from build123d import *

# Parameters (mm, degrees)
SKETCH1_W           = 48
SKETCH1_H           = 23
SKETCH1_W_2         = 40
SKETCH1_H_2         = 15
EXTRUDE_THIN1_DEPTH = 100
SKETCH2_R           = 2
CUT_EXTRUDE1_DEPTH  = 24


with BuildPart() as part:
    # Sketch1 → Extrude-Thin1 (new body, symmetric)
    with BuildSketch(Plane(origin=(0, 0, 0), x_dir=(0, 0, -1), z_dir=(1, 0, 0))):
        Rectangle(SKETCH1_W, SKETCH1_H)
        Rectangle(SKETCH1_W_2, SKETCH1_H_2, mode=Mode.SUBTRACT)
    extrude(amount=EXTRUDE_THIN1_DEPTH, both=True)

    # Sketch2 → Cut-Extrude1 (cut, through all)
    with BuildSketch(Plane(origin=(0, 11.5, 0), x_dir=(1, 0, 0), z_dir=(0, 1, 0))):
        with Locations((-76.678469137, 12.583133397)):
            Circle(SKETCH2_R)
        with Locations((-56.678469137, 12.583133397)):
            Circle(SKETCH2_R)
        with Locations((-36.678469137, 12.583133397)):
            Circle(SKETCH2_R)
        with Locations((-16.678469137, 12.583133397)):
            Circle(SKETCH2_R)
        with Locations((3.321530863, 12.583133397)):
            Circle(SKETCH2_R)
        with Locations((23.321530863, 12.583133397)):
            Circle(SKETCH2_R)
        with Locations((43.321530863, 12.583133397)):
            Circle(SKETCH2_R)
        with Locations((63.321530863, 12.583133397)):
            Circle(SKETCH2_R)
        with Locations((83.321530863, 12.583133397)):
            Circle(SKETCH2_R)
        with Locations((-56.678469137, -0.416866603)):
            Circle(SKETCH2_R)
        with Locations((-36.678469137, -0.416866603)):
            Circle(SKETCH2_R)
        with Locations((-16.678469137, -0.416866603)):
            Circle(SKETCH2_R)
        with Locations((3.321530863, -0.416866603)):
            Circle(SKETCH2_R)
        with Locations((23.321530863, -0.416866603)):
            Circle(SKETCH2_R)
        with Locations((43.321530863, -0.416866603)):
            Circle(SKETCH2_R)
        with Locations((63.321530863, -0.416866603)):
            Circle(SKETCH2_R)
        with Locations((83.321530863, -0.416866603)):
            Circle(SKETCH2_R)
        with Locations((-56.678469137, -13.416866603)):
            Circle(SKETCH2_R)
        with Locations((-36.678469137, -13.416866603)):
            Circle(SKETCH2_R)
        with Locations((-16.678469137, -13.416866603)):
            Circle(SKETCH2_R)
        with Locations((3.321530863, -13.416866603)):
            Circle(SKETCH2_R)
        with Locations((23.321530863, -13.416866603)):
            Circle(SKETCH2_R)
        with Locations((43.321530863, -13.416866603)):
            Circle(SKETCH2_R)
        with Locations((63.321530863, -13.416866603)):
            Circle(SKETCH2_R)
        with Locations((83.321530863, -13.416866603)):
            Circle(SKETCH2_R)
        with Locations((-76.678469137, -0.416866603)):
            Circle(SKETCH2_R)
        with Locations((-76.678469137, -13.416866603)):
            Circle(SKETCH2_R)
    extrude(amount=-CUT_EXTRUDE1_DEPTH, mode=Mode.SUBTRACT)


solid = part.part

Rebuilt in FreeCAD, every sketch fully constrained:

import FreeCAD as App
import Part
import Sketcher


def add_polygon(sketch, points):
    """Adds a closed chain of lines whose ends are joined by coincident constraints."""
    first, n = sketch.GeometryCount, len(points)
    for a, b in zip(points, points[1:] + points[:1]):
        sketch.addGeometry(Part.LineSegment(App.Vector(*a, 0), App.Vector(*b, 0)), False)
    for i in range(n):
        sketch.addConstraint(Sketcher.Constraint("Coincident", first + i, 2, first + (i + 1) % n, 1))

doc = App.newDocument("Part")
body = doc.addObject("PartDesign::Body", "Body")

# Sketch on YZ plane
sketch1 = body.newObject("Sketcher::SketchObject", "Sketch")
sketch1.AttachmentSupport = (doc.getObject("YZ_Plane"), [""])
sketch1.MapMode = "FlatFace"
add_polygon(sketch1, [(11.5, 24), (-11.5, 24), (-11.5, -24), (11.5, -24)])  # lines 0-3
add_polygon(sketch1, [(-7.5, -20), (-7.5, 20), (7.5, 20), (7.5, -20)])  # lines 4-7
sketch1.addConstraint([
    Sketcher.Constraint("Horizontal", 0),
    Sketcher.Constraint("Vertical", 1),
    Sketcher.Constraint("Horizontal", 2),
    Sketcher.Constraint("Vertical", 3),
    Sketcher.Constraint("Vertical", 4),
    Sketcher.Constraint("Horizontal", 5),
    Sketcher.Constraint("Vertical", 6),
    Sketcher.Constraint("Horizontal", 7),
    Sketcher.Constraint("Symmetric", 0, 2, 2, 2, -1, 1),
    Sketcher.Constraint("Symmetric", 4, 2, 6, 2, -1, 1),
    Sketcher.Constraint("DistanceX", 0, 2, 0, 1, 23.0),
    Sketcher.Constraint("DistanceX", 5, 1, 5, 2, 15.0),
    Sketcher.Constraint("DistanceY", 1, 2, 1, 1, 48.0),
    Sketcher.Constraint("DistanceY", 4, 1, 4, 2, 40.0),
])
pad1 = body.newObject("PartDesign::Pad", "Pad")
pad1.Profile = sketch1
pad1.Length = 200
pad1.Midplane = True

# Sketch on XZ plane
sketch2 = body.newObject("Sketcher::SketchObject", "Sketch001")
sketch2.AttachmentSupport = (doc.getObject("XZ_Plane"), [""])
sketch2.MapMode = "FlatFace"
sketch2.AttachmentOffset = App.Placement(App.Vector(0, 0, -11.5), App.Rotation())
sketch2.addGeometry([
    Part.Circle(App.Vector(-76.678469, -12.583133, 0), App.Vector(0, 0, 1), 2),  # 0
    Part.Circle(App.Vector(-56.678469, -12.583133, 0), App.Vector(0, 0, 1), 2),  # 1
    Part.Circle(App.Vector(-36.678469, -12.583133, 0), App.Vector(0, 0, 1), 2),  # 2
    Part.Circle(App.Vector(-16.678469, -12.583133, 0), App.Vector(0, 0, 1), 2),  # 3
    Part.Circle(App.Vector(3.321531, -12.583133, 0), App.Vector(0, 0, 1), 2),  # 4
    Part.Circle(App.Vector(23.321531, -12.583133, 0), App.Vector(0, 0, 1), 2),  # 5
    Part.Circle(App.Vector(43.321531, -12.583133, 0), App.Vector(0, 0, 1), 2),  # 6
    Part.Circle(App.Vector(63.321531, -12.583133, 0), App.Vector(0, 0, 1), 2),  # 7
    Part.Circle(App.Vector(83.321531, -12.583133, 0), App.Vector(0, 0, 1), 2),  # 8
    Part.Circle(App.Vector(-56.678469, 0.416867, 0), App.Vector(0, 0, 1), 2),  # 9
    Part.Circle(App.Vector(-36.678469, 0.416867, 0), App.Vector(0, 0, 1), 2),  # 10
    Part.Circle(App.Vector(-16.678469, 0.416867, 0), App.Vector(0, 0, 1), 2),  # 11
    Part.Circle(App.Vector(3.321531, 0.416867, 0), App.Vector(0, 0, 1), 2),  # 12
    Part.Circle(App.Vector(23.321531, 0.416867, 0), App.Vector(0, 0, 1), 2),  # 13
    Part.Circle(App.Vector(43.321531, 0.416867, 0), App.Vector(0, 0, 1), 2),  # 14
    Part.Circle(App.Vector(63.321531, 0.416867, 0), App.Vector(0, 0, 1), 2),  # 15
    Part.Circle(App.Vector(83.321531, 0.416867, 0), App.Vector(0, 0, 1), 2),  # 16
    Part.Circle(App.Vector(-56.678469, 13.416867, 0), App.Vector(0, 0, 1), 2),  # 17
    Part.Circle(App.Vector(-36.678469, 13.416867, 0), App.Vector(0, 0, 1), 2),  # 18
    Part.Circle(App.Vector(-16.678469, 13.416867, 0), App.Vector(0, 0, 1), 2),  # 19
    Part.Circle(App.Vector(3.321531, 13.416867, 0), App.Vector(0, 0, 1), 2),  # 20
    Part.Circle(App.Vector(23.321531, 13.416867, 0), App.Vector(0, 0, 1), 2),  # 21
    Part.Circle(App.Vector(43.321531, 13.416867, 0), App.Vector(0, 0, 1), 2),  # 22
    Part.Circle(App.Vector(63.321531, 13.416867, 0), App.Vector(0, 0, 1), 2),  # 23
    Part.Circle(App.Vector(83.321531, 13.416867, 0), App.Vector(0, 0, 1), 2),  # 24
    Part.Circle(App.Vector(-76.678469, 0.416867, 0), App.Vector(0, 0, 1), 2),  # 25
    Part.Circle(App.Vector(-76.678469, 13.416867, 0), App.Vector(0, 0, 1), 2),  # 26
], False)
sketch2.addConstraint([
    Sketcher.Constraint("Equal", 0, 1),
    Sketcher.Constraint("Equal", 1, 2),
    Sketcher.Constraint("Equal", 2, 3),
    Sketcher.Constraint("Equal", 3, 4),
    Sketcher.Constraint("Equal", 4, 5),
    Sketcher.Constraint("Equal", 5, 6),
    Sketcher.Constraint("Equal", 6, 7),
    Sketcher.Constraint("Equal", 7, 8),
    Sketcher.Constraint("Equal", 8, 9),
    Sketcher.Constraint("Equal", 9, 10),
    Sketcher.Constraint("Equal", 10, 11),
    Sketcher.Constraint("Equal", 11, 12),
    Sketcher.Constraint("Equal", 12, 13),
    Sketcher.Constraint("Equal", 13, 14),
    Sketcher.Constraint("Equal", 14, 15),
    Sketcher.Constraint("Equal", 15, 16),
    Sketcher.Constraint("Equal", 16, 17),
    Sketcher.Constraint("Equal", 17, 18),
    Sketcher.Constraint("Equal", 18, 19),
    Sketcher.Constraint("Equal", 19, 20),
    Sketcher.Constraint("Equal", 20, 21),
    Sketcher.Constraint("Equal", 21, 22),
    Sketcher.Constraint("Equal", 22, 23),
    Sketcher.Constraint("Equal", 23, 24),
    Sketcher.Constraint("Equal", 24, 25),
    Sketcher.Constraint("Equal", 25, 26),
    Sketcher.Constraint("Horizontal", 0, 3, 1, 3),
    Sketcher.Constraint("Horizontal", 1, 3, 2, 3),
    Sketcher.Constraint("Horizontal", 2, 3, 3, 3),
    Sketcher.Constraint("Horizontal", 3, 3, 4, 3),
    Sketcher.Constraint("Horizontal", 4, 3, 5, 3),
    Sketcher.Constraint("Horizontal", 5, 3, 6, 3),
    Sketcher.Constraint("Horizontal", 6, 3, 7, 3),
    Sketcher.Constraint("Horizontal", 7, 3, 8, 3),
    Sketcher.Constraint("Horizontal", 9, 3, 10, 3),
    Sketcher.Constraint("Horizontal", 10, 3, 11, 3),
    Sketcher.Constraint("Horizontal", 11, 3, 12, 3),
    Sketcher.Constraint("Horizontal", 12, 3, 13, 3),
    Sketcher.Constraint("Horizontal", 13, 3, 14, 3),
    Sketcher.Constraint("Horizontal", 14, 3, 15, 3),
    Sketcher.Constraint("Horizontal", 15, 3, 16, 3),
    Sketcher.Constraint("Horizontal", 17, 3, 18, 3),
    Sketcher.Constraint("Horizontal", 18, 3, 19, 3),
    Sketcher.Constraint("Horizontal", 19, 3, 20, 3),
    Sketcher.Constraint("Horizontal", 20, 3, 21, 3),
    Sketcher.Constraint("Horizontal", 21, 3, 22, 3),
    Sketcher.Constraint("Horizontal", 22, 3, 23, 3),
    Sketcher.Constraint("Horizontal", 23, 3, 24, 3),
    Sketcher.Constraint("Horizontal", 16, 3, 25, 3),
    Sketcher.Constraint("Horizontal", 24, 3, 26, 3),
    Sketcher.Constraint("Vertical", 1, 3, 9, 3),
    Sketcher.Constraint("Vertical", 2, 3, 10, 3),
    Sketcher.Constraint("Vertical", 3, 3, 11, 3),
    Sketcher.Constraint("Vertical", 4, 3, 12, 3),
    Sketcher.Constraint("Vertical", 5, 3, 13, 3),
    Sketcher.Constraint("Vertical", 6, 3, 14, 3),
    Sketcher.Constraint("Vertical", 7, 3, 15, 3),
    Sketcher.Constraint("Vertical", 8, 3, 16, 3),
    Sketcher.Constraint("Vertical", 9, 3, 17, 3),
    Sketcher.Constraint("Vertical", 10, 3, 18, 3),
    Sketcher.Constraint("Vertical", 11, 3, 19, 3),
    Sketcher.Constraint("Vertical", 12, 3, 20, 3),
    Sketcher.Constraint("Vertical", 13, 3, 21, 3),
    Sketcher.Constraint("Vertical", 14, 3, 22, 3),
    Sketcher.Constraint("Vertical", 15, 3, 23, 3),
    Sketcher.Constraint("Vertical", 16, 3, 24, 3),
    Sketcher.Constraint("Vertical", 0, 3, 25, 3),
    Sketcher.Constraint("Vertical", 25, 3, 26, 3),
    Sketcher.Constraint("Diameter", 0, 4.0),
    Sketcher.Constraint("DistanceX", 0, 3, 1, 3, 20.0),
    Sketcher.Constraint("DistanceX", 1, 3, 2, 3, 20.0),
    Sketcher.Constraint("DistanceX", 2, 3, 3, 3, 20.0),
    Sketcher.Constraint("DistanceX", 3, 3, 4, 3, 20.0),
    Sketcher.Constraint("DistanceX", 4, 3, 5, 3, 20.0),
    Sketcher.Constraint("DistanceX", 5, 3, 6, 3, 20.0),
    Sketcher.Constraint("DistanceX", 6, 3, 7, 3, 20.0),
    Sketcher.Constraint("DistanceX", 7, 3, 8, 3, 20.0),
    Sketcher.Constraint("DistanceY", 1, 3, 9, 3, 13.0),
    Sketcher.Constraint("DistanceY", 9, 3, 17, 3, 13.0),
    Sketcher.Constraint("DistanceX", 0, 3, -1, 1, 76.678469),
    Sketcher.Constraint("DistanceY", 0, 3, -1, 1, 12.583133),
])
pocket1 = body.newObject("PartDesign::Pocket", "Pocket")
pocket1.Profile = sketch2
pocket1.Type = "ThroughAll"
pocket1.Reversed = True

doc.recompute()
